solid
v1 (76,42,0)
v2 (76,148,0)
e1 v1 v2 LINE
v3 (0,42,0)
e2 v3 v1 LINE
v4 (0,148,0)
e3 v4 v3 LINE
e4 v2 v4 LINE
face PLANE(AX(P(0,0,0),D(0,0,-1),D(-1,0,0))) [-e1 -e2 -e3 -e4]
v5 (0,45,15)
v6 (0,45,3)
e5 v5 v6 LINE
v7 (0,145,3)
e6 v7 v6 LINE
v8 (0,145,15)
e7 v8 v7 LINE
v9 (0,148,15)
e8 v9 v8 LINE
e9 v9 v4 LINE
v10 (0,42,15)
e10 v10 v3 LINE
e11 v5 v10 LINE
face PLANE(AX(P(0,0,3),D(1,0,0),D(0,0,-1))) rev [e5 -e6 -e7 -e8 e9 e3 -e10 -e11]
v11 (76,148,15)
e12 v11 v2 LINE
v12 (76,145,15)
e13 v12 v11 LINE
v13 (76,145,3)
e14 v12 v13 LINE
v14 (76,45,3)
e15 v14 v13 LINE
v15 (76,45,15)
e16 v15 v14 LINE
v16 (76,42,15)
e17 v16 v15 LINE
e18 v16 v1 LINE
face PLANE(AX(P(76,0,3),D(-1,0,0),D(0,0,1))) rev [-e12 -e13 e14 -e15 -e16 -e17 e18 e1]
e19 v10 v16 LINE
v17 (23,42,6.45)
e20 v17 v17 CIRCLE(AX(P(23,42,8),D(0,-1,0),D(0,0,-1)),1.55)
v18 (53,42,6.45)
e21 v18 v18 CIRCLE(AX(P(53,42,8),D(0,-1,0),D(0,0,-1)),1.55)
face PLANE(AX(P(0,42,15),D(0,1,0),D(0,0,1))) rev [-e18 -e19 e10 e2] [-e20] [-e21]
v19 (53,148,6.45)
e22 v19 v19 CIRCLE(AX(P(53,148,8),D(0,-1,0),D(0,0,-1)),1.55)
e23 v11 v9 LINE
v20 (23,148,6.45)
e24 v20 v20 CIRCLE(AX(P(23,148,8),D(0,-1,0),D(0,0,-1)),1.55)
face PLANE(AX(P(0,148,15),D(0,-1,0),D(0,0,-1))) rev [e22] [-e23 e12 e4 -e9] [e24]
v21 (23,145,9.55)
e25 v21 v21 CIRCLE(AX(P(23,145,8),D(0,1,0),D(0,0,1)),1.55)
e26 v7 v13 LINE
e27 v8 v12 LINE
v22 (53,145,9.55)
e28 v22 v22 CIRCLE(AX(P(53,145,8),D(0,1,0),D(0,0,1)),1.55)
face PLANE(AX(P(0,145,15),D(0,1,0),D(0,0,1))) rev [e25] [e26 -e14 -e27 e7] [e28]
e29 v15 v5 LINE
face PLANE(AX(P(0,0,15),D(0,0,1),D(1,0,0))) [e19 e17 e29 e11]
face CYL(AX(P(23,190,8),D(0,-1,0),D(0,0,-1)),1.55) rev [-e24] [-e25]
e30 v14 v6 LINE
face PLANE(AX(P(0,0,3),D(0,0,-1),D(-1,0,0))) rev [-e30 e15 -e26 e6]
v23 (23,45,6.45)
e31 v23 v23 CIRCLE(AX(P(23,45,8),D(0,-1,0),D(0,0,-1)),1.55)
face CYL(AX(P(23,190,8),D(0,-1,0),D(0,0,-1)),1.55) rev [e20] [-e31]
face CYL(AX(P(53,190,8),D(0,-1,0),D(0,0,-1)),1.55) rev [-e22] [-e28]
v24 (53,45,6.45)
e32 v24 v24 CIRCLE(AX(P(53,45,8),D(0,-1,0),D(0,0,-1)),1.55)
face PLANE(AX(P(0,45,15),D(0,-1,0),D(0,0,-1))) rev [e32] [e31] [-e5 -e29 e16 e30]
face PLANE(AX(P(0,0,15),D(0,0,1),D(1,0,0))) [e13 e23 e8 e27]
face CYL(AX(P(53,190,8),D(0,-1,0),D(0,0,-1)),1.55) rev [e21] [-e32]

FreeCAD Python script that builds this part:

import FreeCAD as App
import Part
import Sketcher
Q = App.Units.Quantity


def add_polygon(sketch, points):
    """Adds a closed chain of lines whose ends are joined by coincident constraints."""
    first, n = sketch.GeometryCount, len(points)
    for a, b in zip(points, points[1:] + points[:1]):
        sketch.addGeometry(Part.LineSegment(App.Vector(*a, 0), App.Vector(*b, 0)), False)
    for i in range(n):
        sketch.addConstraint(Sketcher.Constraint("Coincident", first + i, 2, first + (i + 1) % n, 1))

doc = App.newDocument("Part")
body = doc.addObject("PartDesign::Body", "Body")

sketch1 = body.newObject("Sketcher::SketchObject", "Sketch")
sketch1.AttachmentSupport = (doc.getObject("XY_Plane"), [""])
sketch1.MapMode = "FlatFace"
add_polygon(sketch1, [(0, 190), (0, 0), (76, 0), (76, 190)])
sketch1.addGeometry(Part.Circle(App.Vector(13, 10, 0), App.Vector(0, 0, 1), 1.6), False)
sketch1.addGeometry(Part.Circle(App.Vector(63, 10, 0), App.Vector(0, 0, 1), 1.6), False)
sketch1.addGeometry(Part.Circle(App.Vector(13, 180, 0), App.Vector(0, 0, 1), 1.6), False)
sketch1.addGeometry(Part.Circle(App.Vector(63, 180, 0), App.Vector(0, 0, 1), 1.6), False)
sketch1.addConstraint([
    Sketcher.Constraint("Vertical", 0),
    Sketcher.Constraint("Horizontal", 1),
    Sketcher.Constraint("Vertical", 2),
    Sketcher.Constraint("Horizontal", 3),
    Sketcher.Constraint("Coincident", 0, 2, -1, 1),
    Sketcher.Constraint("Equal", 4, 5),
    Sketcher.Constraint("Equal", 5, 6),
    Sketcher.Constraint("Equal", 6, 7),
    Sketcher.Constraint("Horizontal", 4, 3, 5, 3),
    Sketcher.Constraint("Horizontal", 6, 3, 7, 3),
    Sketcher.Constraint("Vertical", 4, 3, 6, 3),
    Sketcher.Constraint("Vertical", 5, 3, 7, 3),
    Sketcher.Constraint("Diameter", 4, Q("3.1 mm")),
    Sketcher.Constraint("DistanceX", 1, 1, 1, 2, Q("76 mm")),
    Sketcher.Constraint("DistanceY", 0, 2, 0, 1, Q("190 mm")),
    Sketcher.Constraint("DistanceX", -1, 1, 4, 3, Q("13 mm")),
    Sketcher.Constraint("DistanceY", -1, 1, 4, 3, Q("10 mm")),
    Sketcher.Constraint("DistanceX", -1, 1, 5, 3, Q("63 mm")),
    Sketcher.Constraint("DistanceY", -1, 1, 6, 3, Q("180 mm")),
])
pad1 = body.newObject("PartDesign::Pad", "Pad")
pad1.Profile = sketch1
pad1.Length = 3

sketch2 = body.newObject("Sketcher::SketchObject", "Sketch001")
sketch2.AttachmentSupport = (doc.getObject("XY_Plane"), [""])
sketch2.MapMode = "FlatFace"
sketch2.AttachmentOffset = App.Placement(App.Vector(0, 0, 3), App.Rotation())
add_polygon(sketch2, [(0, 45), (0, 42), (76, 42), (76, 45)])
add_polygon(sketch2, [(0, 148), (0, 145), (76, 145), (76, 148)])
sketch2.addConstraint([
    Sketcher.Constraint("Vertical", 0),
    Sketcher.Constraint("Horizontal", 1),
    Sketcher.Constraint("Vertical", 2),
    Sketcher.Constraint("Horizontal", 3),
    Sketcher.Constraint("Vertical", 4),
    Sketcher.Constraint("Horizontal", 5),
    Sketcher.Constraint("Vertical", 6),
    Sketcher.Constraint("Horizontal", 7),
    Sketcher.Constraint("PointOnObject", 0, 2, -2),
    Sketcher.Constraint("PointOnObject", 4, 2, -2),
    Sketcher.Constraint("Vertical", 2, 2, 5, 2),
    Sketcher.Constraint("Equal", 2, 4),
    Sketcher.Constraint("DistanceX", 1, 1, 1, 2, Q("76 mm")),
    Sketcher.Constraint("DistanceY", 0, 2, 0, 1, Q("3 mm")),
    Sketcher.Constraint("DistanceY", -1, 1, 0, 2, Q("42 mm")),
    Sketcher.Constraint("DistanceY", -1, 1, 4, 2, Q("145 mm")),
])
pad2 = body.newObject("PartDesign::Pad", "Pad001")
pad2.Profile = sketch2
pad2.Length = 12

sketch3 = body.newObject("Sketcher::SketchObject", "Sketch002")
sketch3.AttachmentSupport = (doc.getObject("XZ_Plane"), [""])
sketch3.MapMode = "FlatFace"
sketch3.AttachmentOffset = App.Placement(App.Vector(0, 0, -42), App.Rotation())
sketch3.addGeometry([
    Part.Circle(App.Vector(23, 8, 0), App.Vector(0, 0, 1), 1.6),
    Part.Circle(App.Vector(53, 8, 0), App.Vector(0, 0, 1), 1.6),
], False)
sketch3.addConstraint([
    Sketcher.Constraint("Equal", 0, 1),
    Sketcher.Constraint("Horizontal", 0, 3, 1, 3),
    Sketcher.Constraint("Diameter", 0, Q("3.1 mm")),
    Sketcher.Constraint("DistanceX", -1, 1, 0, 3, Q("23 mm")),
    Sketcher.Constraint("DistanceY", -1, 1, 0, 3, Q("8 mm")),
    Sketcher.Constraint("DistanceX", -1, 1, 1, 3, Q("53 mm")),
])
pocket1 = body.newObject("PartDesign::Pocket", "Pocket")
pocket1.Profile = sketch3
pocket1.Type = "ThroughAll"

sketch4 = body.newObject("Sketcher::SketchObject", "Sketch003")
sketch4.AttachmentSupport = (doc.getObject("XY_Plane"), [""])
sketch4.MapMode = "FlatFace"
sketch4.AttachmentOffset = App.Placement(App.Vector(0, 0, 3), App.Rotation())
add_polygon(sketch4, [(0, 42), (0, 0), (76, 0), (76, 42)])
add_polygon(sketch4, [(0, 190), (0, 148), (76, 148), (76, 190)])
sketch4.addConstraint([
    Sketcher.Constraint("Vertical", 0),
    Sketcher.Constraint("Horizontal", 1),
    Sketcher.Constraint("Vertical", 2),
    Sketcher.Constraint("Horizontal", 3),
    Sketcher.Constraint("Vertical", 4),
    Sketcher.Constraint("Horizontal", 5),
    Sketcher.Constraint("Vertical", 6),
    Sketcher.Constraint("Horizontal", 7),
    Sketcher.Constraint("Coincident", 0, 2, -1, 1),
    Sketcher.Constraint("PointOnObject", 4, 2, -2),
    Sketcher.Constraint("Vertical", 2, 2, 5, 2),
    Sketcher.Constraint("Equal", 2, 4),
    Sketcher.Constraint("DistanceX", 1, 1, 1, 2, Q("76 mm")),
    Sketcher.Constraint("DistanceY", 0, 2, 0, 1, Q("42 mm")),
    Sketcher.Constraint("DistanceY", -1, 1, 4, 2, Q("148 mm")),
])
pocket2 = body.newObject("PartDesign::Pocket", "Pocket001")
pocket2.Profile = sketch4
pocket2.Length = 10

doc.recompute()
